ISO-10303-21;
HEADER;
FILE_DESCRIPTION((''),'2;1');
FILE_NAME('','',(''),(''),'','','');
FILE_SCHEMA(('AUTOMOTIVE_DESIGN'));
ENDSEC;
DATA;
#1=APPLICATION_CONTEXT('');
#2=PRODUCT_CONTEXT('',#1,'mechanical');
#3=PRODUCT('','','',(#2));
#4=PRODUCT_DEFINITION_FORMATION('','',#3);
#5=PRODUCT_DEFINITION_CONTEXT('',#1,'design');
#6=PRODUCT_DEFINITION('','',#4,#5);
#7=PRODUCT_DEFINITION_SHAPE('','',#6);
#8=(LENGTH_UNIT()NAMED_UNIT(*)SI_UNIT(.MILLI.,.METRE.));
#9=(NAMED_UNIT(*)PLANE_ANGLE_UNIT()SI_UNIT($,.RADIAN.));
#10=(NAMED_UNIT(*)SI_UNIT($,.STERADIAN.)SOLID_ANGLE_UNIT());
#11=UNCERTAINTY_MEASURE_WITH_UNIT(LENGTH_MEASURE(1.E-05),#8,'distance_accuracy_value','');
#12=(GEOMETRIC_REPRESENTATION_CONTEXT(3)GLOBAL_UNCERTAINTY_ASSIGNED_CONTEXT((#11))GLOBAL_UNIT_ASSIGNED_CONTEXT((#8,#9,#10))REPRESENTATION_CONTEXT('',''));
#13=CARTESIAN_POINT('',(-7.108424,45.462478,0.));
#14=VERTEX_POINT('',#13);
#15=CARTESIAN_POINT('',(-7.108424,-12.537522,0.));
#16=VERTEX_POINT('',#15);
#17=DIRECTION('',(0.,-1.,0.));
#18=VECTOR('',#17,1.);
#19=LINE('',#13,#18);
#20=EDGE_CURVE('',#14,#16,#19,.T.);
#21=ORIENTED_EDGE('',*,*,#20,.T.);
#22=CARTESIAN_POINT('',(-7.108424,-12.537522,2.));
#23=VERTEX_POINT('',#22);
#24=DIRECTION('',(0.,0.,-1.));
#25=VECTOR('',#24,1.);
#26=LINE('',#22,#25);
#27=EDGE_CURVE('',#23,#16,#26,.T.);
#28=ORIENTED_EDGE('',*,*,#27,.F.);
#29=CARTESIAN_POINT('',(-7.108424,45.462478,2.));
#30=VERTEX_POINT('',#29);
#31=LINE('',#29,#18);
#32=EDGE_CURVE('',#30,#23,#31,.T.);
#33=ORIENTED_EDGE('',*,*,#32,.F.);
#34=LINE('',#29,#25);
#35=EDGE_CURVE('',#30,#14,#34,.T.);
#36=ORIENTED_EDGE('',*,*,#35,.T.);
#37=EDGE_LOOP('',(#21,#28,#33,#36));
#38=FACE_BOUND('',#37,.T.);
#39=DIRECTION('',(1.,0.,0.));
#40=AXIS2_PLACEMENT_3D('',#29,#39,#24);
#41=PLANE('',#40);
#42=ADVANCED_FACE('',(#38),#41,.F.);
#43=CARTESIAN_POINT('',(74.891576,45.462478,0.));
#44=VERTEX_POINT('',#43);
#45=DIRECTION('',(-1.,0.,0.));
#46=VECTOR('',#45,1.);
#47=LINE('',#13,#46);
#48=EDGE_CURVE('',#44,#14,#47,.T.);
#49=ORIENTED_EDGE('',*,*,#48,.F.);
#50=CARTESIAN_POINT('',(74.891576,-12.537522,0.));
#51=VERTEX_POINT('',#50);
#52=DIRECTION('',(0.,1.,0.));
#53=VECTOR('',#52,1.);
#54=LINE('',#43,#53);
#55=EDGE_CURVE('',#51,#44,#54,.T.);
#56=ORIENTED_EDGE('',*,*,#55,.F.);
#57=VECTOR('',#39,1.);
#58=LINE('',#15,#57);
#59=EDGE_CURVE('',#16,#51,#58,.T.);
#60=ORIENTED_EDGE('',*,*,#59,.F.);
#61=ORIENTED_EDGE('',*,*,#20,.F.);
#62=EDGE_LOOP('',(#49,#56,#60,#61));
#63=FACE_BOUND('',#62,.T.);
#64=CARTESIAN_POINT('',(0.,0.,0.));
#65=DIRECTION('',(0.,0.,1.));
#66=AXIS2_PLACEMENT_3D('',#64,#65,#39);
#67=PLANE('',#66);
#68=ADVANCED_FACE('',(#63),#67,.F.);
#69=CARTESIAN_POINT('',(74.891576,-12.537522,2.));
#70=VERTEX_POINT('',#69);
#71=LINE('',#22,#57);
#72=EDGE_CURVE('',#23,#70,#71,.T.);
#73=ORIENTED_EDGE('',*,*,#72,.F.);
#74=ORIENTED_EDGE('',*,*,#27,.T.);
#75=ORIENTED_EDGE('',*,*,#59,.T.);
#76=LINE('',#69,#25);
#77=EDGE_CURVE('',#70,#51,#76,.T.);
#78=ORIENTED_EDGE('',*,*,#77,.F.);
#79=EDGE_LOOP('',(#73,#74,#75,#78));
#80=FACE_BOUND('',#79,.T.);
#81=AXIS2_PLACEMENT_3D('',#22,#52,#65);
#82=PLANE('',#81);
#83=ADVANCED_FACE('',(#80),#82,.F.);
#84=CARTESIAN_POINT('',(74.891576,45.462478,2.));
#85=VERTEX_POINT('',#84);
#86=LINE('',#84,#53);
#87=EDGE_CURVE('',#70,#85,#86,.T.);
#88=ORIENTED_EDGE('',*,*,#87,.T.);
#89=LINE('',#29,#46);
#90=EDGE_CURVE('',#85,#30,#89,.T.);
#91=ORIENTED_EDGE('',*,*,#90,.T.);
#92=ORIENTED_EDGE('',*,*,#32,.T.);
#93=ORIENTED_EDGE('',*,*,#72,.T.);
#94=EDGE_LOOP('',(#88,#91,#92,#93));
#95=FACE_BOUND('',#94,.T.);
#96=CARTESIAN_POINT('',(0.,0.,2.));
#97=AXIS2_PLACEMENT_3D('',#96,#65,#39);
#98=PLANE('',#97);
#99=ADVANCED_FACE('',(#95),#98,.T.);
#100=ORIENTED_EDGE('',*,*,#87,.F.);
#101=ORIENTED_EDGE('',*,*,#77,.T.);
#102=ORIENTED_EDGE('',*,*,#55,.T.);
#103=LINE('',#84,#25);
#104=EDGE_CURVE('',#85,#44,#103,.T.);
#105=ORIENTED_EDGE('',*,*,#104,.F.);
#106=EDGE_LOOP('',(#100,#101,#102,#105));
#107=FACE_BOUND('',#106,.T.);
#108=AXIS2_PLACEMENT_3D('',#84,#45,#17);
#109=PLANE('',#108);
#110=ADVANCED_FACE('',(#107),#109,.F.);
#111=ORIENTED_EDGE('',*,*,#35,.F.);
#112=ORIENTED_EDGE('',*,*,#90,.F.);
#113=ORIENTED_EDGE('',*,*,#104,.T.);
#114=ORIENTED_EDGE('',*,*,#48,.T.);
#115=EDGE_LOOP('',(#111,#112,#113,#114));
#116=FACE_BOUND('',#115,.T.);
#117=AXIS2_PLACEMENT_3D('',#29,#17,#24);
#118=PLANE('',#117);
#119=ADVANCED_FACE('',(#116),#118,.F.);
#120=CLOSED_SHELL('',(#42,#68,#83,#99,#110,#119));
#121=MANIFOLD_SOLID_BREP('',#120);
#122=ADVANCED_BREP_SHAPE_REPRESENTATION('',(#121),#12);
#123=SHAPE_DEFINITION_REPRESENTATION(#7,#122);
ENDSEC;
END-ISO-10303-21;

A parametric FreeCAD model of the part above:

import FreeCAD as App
import Part
import Sketcher
Q = App.Units.Quantity

doc = App.newDocument("Part")
body = doc.addObject("PartDesign::Body", "Body")

# Sketch on XY plane
sketch1 = body.newObject("Sketcher::SketchObject", "Sketch")
sketch1.AttachmentSupport = (doc.getObject("XY_Plane"), [""])
sketch1.MapMode = "FlatFace"
sketch1.addGeometry(Part.LineSegment(App.Vector(-7, 45, 0), App.Vector(-7, -13, 0)), False)
sketch1.addGeometry(Part.LineSegment(App.Vector(-7, -13, 0), App.Vector(75, -13, 0)), False)
sketch1.addGeometry(Part.LineSegment(App.Vector(75, -13, 0), App.Vector(75, 45, 0)), False)
sketch1.addGeometry(Part.LineSegment(App.Vector(75, 45, 0), App.Vector(-7, 45, 0)), False)
sketch1.addConstraint(Sketcher.Constraint("Coincident", 0, 2, 1, 1))
sketch1.addConstraint(Sketcher.Constraint("Coincident", 1, 2, 2, 1))
sketch1.addConstraint(Sketcher.Constraint("Coincident", 2, 2, 3, 1))
sketch1.addConstraint(Sketcher.Constraint("Coincident", 3, 2, 0, 1))
sketch1.addConstraint(Sketcher.Constraint("Vertical", 0))
sketch1.addConstraint(Sketcher.Constraint("Horizontal", 1))
sketch1.addConstraint(Sketcher.Constraint("Vertical", 2))
sketch1.addConstraint(Sketcher.Constraint("Horizontal", 3))
sketch1.addConstraint(Sketcher.Constraint("DistanceX", 1, 1, 1, 2, Q("82 mm")))
sketch1.addConstraint(Sketcher.Constraint("DistanceY", 0, 2, 0, 1, Q("58 mm")))
sketch1.addConstraint(Sketcher.Constraint("DistanceY", 0, 2, -1, 1, Q("12.537522 mm")))
sketch1.addConstraint(Sketcher.Constraint("DistanceX", 0, 2, -1, 1, Q("7.108424 mm")))
pad1 = body.newObject("PartDesign::Pad", "Pad")
pad1.Profile = sketch1
pad1.Length = 2

doc.recompute()
